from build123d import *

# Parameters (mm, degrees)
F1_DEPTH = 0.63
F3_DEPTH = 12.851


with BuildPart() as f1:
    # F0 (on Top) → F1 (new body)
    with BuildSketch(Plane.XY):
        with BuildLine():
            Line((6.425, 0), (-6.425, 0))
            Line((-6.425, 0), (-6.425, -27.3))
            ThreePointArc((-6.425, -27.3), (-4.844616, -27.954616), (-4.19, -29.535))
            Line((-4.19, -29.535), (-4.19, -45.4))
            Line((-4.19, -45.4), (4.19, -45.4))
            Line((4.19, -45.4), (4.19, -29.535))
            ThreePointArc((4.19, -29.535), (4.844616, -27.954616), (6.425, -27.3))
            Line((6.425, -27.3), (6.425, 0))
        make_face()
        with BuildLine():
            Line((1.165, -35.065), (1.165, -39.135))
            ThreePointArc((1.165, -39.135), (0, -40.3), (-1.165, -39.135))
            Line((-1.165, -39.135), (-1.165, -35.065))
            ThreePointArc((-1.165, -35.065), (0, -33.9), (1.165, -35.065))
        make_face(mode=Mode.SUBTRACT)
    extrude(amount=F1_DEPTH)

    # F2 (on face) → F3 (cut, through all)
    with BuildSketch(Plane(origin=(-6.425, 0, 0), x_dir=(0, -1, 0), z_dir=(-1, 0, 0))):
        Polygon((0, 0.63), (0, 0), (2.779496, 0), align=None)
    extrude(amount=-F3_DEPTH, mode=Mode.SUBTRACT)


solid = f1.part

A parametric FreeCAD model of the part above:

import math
import FreeCAD as App
import Part
import Sketcher
from FreeCAD import Vector
Q = App.Units.Quantity


def add_polygon(sketch, points):
    """Adds a closed chain of lines whose ends are joined by coincident constraints."""
    first, n = sketch.GeometryCount, len(points)
    for a, b in zip(points, points[1:] + points[:1]):
        sketch.addGeometry(Part.LineSegment(App.Vector(*a, 0), App.Vector(*b, 0)), False)
    for i in range(n):
        sketch.addConstraint(Sketcher.Constraint("Coincident", first + i, 2, first + (i + 1) % n, 1))

doc = App.newDocument("Part")
body = doc.addObject("PartDesign::Body", "Body")

# Sketch on XY plane
sketch1 = body.newObject("Sketcher::SketchObject", "Sketch")
sketch1.AttachmentSupport = (doc.getObject("XY_Plane"), [""])
sketch1.MapMode = "FlatFace"
sketch1.addGeometry([
    Part.LineSegment(Vector(6.4, 0, 0), Vector(-6.4, 0, 0)),  # 0
    Part.LineSegment(Vector(-6.4, 0, 0), Vector(-6.4, -27.3, 0)),  # 1
    Part.ArcOfCircle(Part.Circle(Vector(-6.4, -29.5, 0), Vector(0, 0, 1), 2.2), math.radians(0), math.radians(90)),  # 2
    Part.LineSegment(Vector(-4.2, -29.5, 0), Vector(-4.2, -45.4, 0)),  # 3
    Part.LineSegment(Vector(-4.2, -45.4, 0), Vector(4.2, -45.4, 0)),  # 4
    Part.LineSegment(Vector(4.2, -45.4, 0), Vector(4.2, -29.5, 0)),  # 5
    Part.ArcOfCircle(Part.Circle(Vector(6.4, -29.5, 0), Vector(0, 0, 1), 2.2), math.radians(90), math.radians(180)),  # 6
    Part.LineSegment(Vector(6.4, -27.3, 0), Vector(6.4, 0, 0)),  # 7
    Part.ArcOfCircle(Part.Circle(Vector(0, -35.1, 0), Vector(0, 0, 1), 1.2), math.radians(0), math.radians(180)),  # 8
    Part.LineSegment(Vector(1.2, -35.1, 0), Vector(1.2, -39.1, 0)),  # 9
    Part.ArcOfCircle(Part.Circle(Vector(0, -39.1, 0), Vector(0, 0, 1), 1.2), math.radians(180), math.radians(360)),  # 10
    Part.LineSegment(Vector(-1.2, -39.1, 0), Vector(-1.2, -35.1, 0)),  # 11
], False)
sketch1.addConstraint([
    Sketcher.Constraint("Coincident", 0, 2, 1, 1),
    Sketcher.Constraint("Coincident", 1, 2, 2, 2),
    Sketcher.Constraint("Tangent", 2, 1, 3, 1),
    Sketcher.Constraint("Coincident", 3, 2, 4, 1),
    Sketcher.Constraint("Coincident", 4, 2, 5, 1),
    Sketcher.Constraint("Tangent", 5, 2, 6, 2),
    Sketcher.Constraint("Coincident", 6, 1, 7, 1),
    Sketcher.Constraint("Coincident", 7, 2, 0, 1),
    Sketcher.Constraint("Tangent", 8, 1, 9, 1),
    Sketcher.Constraint("Tangent", 9, 2, 10, 2),
    Sketcher.Constraint("Tangent", 10, 1, 11, 1),
    Sketcher.Constraint("Tangent", 11, 2, 8, 2),
    Sketcher.Constraint("Horizontal", 0),
    Sketcher.Constraint("Vertical", 1),
    Sketcher.Constraint("Vertical", 3),
    Sketcher.Constraint("Horizontal", 4),
    Sketcher.Constraint("Vertical", 5),
    Sketcher.Constraint("Vertical", 7),
    Sketcher.Constraint("Vertical", 9),
    Sketcher.Constraint("Vertical", 11),
    Sketcher.Constraint("Equal", 2, 6),
    Sketcher.Constraint("Symmetric", 0, 2, 7, 2, -1, 1),
    Sketcher.Constraint("Symmetric", 2, 3, 6, 3, -2),
    Sketcher.Constraint("PointOnObject", 8, 3, -2),
    Sketcher.Constraint("Vertical", 2, 3, 0, 2),
    Sketcher.Constraint("DistanceY", 1, 2, 1, 1, Q("27.3 mm")),
    Sketcher.Constraint("Radius", 2, Q("2.234999 mm")),
    Sketcher.Constraint("Radius", 8, Q("1.165 mm")),
    Sketcher.Constraint("DistanceX", 0, 2, 0, 1, Q("12.85 mm")),
    Sketcher.Constraint("DistanceY", 9, 2, 9, 1, Q("4.07 mm")),
    Sketcher.Constraint("DistanceY", 3, 2, -1, 1, Q("45.4 mm")),
    Sketcher.Constraint("DistanceY", 10, 3, 2, 3, Q("9.600001 mm")),
])
pad1 = body.newObject("PartDesign::Pad", "Pad")
pad1.Profile = sketch1
pad1.Length = 0.63

# Sketch on YZ plane
sketch2 = body.newObject("Sketcher::SketchObject", "Sketch001")
sketch2.AttachmentSupport = (doc.getObject("YZ_Plane"), [""])
sketch2.MapMode = "FlatFace"
sketch2.AttachmentOffset = App.Placement(Vector(0, 0, -6.425), App.Rotation())
add_polygon(sketch2, [(0, 0.6), (0, 0), (-2.8, 0)])  # lines 0-2
sketch2.addConstraint([
    Sketcher.Constraint("Vertical", 0),
    Sketcher.Constraint("Horizontal", 1),
    Sketcher.Constraint("Coincident", 0, 2, -1, 1),
    Sketcher.Constraint("DistanceY", 0, 2, 0, 1, Q("0.63 mm")),
    Sketcher.Constraint("Distance", 2, Q("2.85 mm")),
])
pocket1 = body.newObject("PartDesign::Pocket", "Pocket")
pocket1.Profile = sketch2
pocket1.Type = "ThroughAll"
pocket1.Reversed = True

doc.recompute()
